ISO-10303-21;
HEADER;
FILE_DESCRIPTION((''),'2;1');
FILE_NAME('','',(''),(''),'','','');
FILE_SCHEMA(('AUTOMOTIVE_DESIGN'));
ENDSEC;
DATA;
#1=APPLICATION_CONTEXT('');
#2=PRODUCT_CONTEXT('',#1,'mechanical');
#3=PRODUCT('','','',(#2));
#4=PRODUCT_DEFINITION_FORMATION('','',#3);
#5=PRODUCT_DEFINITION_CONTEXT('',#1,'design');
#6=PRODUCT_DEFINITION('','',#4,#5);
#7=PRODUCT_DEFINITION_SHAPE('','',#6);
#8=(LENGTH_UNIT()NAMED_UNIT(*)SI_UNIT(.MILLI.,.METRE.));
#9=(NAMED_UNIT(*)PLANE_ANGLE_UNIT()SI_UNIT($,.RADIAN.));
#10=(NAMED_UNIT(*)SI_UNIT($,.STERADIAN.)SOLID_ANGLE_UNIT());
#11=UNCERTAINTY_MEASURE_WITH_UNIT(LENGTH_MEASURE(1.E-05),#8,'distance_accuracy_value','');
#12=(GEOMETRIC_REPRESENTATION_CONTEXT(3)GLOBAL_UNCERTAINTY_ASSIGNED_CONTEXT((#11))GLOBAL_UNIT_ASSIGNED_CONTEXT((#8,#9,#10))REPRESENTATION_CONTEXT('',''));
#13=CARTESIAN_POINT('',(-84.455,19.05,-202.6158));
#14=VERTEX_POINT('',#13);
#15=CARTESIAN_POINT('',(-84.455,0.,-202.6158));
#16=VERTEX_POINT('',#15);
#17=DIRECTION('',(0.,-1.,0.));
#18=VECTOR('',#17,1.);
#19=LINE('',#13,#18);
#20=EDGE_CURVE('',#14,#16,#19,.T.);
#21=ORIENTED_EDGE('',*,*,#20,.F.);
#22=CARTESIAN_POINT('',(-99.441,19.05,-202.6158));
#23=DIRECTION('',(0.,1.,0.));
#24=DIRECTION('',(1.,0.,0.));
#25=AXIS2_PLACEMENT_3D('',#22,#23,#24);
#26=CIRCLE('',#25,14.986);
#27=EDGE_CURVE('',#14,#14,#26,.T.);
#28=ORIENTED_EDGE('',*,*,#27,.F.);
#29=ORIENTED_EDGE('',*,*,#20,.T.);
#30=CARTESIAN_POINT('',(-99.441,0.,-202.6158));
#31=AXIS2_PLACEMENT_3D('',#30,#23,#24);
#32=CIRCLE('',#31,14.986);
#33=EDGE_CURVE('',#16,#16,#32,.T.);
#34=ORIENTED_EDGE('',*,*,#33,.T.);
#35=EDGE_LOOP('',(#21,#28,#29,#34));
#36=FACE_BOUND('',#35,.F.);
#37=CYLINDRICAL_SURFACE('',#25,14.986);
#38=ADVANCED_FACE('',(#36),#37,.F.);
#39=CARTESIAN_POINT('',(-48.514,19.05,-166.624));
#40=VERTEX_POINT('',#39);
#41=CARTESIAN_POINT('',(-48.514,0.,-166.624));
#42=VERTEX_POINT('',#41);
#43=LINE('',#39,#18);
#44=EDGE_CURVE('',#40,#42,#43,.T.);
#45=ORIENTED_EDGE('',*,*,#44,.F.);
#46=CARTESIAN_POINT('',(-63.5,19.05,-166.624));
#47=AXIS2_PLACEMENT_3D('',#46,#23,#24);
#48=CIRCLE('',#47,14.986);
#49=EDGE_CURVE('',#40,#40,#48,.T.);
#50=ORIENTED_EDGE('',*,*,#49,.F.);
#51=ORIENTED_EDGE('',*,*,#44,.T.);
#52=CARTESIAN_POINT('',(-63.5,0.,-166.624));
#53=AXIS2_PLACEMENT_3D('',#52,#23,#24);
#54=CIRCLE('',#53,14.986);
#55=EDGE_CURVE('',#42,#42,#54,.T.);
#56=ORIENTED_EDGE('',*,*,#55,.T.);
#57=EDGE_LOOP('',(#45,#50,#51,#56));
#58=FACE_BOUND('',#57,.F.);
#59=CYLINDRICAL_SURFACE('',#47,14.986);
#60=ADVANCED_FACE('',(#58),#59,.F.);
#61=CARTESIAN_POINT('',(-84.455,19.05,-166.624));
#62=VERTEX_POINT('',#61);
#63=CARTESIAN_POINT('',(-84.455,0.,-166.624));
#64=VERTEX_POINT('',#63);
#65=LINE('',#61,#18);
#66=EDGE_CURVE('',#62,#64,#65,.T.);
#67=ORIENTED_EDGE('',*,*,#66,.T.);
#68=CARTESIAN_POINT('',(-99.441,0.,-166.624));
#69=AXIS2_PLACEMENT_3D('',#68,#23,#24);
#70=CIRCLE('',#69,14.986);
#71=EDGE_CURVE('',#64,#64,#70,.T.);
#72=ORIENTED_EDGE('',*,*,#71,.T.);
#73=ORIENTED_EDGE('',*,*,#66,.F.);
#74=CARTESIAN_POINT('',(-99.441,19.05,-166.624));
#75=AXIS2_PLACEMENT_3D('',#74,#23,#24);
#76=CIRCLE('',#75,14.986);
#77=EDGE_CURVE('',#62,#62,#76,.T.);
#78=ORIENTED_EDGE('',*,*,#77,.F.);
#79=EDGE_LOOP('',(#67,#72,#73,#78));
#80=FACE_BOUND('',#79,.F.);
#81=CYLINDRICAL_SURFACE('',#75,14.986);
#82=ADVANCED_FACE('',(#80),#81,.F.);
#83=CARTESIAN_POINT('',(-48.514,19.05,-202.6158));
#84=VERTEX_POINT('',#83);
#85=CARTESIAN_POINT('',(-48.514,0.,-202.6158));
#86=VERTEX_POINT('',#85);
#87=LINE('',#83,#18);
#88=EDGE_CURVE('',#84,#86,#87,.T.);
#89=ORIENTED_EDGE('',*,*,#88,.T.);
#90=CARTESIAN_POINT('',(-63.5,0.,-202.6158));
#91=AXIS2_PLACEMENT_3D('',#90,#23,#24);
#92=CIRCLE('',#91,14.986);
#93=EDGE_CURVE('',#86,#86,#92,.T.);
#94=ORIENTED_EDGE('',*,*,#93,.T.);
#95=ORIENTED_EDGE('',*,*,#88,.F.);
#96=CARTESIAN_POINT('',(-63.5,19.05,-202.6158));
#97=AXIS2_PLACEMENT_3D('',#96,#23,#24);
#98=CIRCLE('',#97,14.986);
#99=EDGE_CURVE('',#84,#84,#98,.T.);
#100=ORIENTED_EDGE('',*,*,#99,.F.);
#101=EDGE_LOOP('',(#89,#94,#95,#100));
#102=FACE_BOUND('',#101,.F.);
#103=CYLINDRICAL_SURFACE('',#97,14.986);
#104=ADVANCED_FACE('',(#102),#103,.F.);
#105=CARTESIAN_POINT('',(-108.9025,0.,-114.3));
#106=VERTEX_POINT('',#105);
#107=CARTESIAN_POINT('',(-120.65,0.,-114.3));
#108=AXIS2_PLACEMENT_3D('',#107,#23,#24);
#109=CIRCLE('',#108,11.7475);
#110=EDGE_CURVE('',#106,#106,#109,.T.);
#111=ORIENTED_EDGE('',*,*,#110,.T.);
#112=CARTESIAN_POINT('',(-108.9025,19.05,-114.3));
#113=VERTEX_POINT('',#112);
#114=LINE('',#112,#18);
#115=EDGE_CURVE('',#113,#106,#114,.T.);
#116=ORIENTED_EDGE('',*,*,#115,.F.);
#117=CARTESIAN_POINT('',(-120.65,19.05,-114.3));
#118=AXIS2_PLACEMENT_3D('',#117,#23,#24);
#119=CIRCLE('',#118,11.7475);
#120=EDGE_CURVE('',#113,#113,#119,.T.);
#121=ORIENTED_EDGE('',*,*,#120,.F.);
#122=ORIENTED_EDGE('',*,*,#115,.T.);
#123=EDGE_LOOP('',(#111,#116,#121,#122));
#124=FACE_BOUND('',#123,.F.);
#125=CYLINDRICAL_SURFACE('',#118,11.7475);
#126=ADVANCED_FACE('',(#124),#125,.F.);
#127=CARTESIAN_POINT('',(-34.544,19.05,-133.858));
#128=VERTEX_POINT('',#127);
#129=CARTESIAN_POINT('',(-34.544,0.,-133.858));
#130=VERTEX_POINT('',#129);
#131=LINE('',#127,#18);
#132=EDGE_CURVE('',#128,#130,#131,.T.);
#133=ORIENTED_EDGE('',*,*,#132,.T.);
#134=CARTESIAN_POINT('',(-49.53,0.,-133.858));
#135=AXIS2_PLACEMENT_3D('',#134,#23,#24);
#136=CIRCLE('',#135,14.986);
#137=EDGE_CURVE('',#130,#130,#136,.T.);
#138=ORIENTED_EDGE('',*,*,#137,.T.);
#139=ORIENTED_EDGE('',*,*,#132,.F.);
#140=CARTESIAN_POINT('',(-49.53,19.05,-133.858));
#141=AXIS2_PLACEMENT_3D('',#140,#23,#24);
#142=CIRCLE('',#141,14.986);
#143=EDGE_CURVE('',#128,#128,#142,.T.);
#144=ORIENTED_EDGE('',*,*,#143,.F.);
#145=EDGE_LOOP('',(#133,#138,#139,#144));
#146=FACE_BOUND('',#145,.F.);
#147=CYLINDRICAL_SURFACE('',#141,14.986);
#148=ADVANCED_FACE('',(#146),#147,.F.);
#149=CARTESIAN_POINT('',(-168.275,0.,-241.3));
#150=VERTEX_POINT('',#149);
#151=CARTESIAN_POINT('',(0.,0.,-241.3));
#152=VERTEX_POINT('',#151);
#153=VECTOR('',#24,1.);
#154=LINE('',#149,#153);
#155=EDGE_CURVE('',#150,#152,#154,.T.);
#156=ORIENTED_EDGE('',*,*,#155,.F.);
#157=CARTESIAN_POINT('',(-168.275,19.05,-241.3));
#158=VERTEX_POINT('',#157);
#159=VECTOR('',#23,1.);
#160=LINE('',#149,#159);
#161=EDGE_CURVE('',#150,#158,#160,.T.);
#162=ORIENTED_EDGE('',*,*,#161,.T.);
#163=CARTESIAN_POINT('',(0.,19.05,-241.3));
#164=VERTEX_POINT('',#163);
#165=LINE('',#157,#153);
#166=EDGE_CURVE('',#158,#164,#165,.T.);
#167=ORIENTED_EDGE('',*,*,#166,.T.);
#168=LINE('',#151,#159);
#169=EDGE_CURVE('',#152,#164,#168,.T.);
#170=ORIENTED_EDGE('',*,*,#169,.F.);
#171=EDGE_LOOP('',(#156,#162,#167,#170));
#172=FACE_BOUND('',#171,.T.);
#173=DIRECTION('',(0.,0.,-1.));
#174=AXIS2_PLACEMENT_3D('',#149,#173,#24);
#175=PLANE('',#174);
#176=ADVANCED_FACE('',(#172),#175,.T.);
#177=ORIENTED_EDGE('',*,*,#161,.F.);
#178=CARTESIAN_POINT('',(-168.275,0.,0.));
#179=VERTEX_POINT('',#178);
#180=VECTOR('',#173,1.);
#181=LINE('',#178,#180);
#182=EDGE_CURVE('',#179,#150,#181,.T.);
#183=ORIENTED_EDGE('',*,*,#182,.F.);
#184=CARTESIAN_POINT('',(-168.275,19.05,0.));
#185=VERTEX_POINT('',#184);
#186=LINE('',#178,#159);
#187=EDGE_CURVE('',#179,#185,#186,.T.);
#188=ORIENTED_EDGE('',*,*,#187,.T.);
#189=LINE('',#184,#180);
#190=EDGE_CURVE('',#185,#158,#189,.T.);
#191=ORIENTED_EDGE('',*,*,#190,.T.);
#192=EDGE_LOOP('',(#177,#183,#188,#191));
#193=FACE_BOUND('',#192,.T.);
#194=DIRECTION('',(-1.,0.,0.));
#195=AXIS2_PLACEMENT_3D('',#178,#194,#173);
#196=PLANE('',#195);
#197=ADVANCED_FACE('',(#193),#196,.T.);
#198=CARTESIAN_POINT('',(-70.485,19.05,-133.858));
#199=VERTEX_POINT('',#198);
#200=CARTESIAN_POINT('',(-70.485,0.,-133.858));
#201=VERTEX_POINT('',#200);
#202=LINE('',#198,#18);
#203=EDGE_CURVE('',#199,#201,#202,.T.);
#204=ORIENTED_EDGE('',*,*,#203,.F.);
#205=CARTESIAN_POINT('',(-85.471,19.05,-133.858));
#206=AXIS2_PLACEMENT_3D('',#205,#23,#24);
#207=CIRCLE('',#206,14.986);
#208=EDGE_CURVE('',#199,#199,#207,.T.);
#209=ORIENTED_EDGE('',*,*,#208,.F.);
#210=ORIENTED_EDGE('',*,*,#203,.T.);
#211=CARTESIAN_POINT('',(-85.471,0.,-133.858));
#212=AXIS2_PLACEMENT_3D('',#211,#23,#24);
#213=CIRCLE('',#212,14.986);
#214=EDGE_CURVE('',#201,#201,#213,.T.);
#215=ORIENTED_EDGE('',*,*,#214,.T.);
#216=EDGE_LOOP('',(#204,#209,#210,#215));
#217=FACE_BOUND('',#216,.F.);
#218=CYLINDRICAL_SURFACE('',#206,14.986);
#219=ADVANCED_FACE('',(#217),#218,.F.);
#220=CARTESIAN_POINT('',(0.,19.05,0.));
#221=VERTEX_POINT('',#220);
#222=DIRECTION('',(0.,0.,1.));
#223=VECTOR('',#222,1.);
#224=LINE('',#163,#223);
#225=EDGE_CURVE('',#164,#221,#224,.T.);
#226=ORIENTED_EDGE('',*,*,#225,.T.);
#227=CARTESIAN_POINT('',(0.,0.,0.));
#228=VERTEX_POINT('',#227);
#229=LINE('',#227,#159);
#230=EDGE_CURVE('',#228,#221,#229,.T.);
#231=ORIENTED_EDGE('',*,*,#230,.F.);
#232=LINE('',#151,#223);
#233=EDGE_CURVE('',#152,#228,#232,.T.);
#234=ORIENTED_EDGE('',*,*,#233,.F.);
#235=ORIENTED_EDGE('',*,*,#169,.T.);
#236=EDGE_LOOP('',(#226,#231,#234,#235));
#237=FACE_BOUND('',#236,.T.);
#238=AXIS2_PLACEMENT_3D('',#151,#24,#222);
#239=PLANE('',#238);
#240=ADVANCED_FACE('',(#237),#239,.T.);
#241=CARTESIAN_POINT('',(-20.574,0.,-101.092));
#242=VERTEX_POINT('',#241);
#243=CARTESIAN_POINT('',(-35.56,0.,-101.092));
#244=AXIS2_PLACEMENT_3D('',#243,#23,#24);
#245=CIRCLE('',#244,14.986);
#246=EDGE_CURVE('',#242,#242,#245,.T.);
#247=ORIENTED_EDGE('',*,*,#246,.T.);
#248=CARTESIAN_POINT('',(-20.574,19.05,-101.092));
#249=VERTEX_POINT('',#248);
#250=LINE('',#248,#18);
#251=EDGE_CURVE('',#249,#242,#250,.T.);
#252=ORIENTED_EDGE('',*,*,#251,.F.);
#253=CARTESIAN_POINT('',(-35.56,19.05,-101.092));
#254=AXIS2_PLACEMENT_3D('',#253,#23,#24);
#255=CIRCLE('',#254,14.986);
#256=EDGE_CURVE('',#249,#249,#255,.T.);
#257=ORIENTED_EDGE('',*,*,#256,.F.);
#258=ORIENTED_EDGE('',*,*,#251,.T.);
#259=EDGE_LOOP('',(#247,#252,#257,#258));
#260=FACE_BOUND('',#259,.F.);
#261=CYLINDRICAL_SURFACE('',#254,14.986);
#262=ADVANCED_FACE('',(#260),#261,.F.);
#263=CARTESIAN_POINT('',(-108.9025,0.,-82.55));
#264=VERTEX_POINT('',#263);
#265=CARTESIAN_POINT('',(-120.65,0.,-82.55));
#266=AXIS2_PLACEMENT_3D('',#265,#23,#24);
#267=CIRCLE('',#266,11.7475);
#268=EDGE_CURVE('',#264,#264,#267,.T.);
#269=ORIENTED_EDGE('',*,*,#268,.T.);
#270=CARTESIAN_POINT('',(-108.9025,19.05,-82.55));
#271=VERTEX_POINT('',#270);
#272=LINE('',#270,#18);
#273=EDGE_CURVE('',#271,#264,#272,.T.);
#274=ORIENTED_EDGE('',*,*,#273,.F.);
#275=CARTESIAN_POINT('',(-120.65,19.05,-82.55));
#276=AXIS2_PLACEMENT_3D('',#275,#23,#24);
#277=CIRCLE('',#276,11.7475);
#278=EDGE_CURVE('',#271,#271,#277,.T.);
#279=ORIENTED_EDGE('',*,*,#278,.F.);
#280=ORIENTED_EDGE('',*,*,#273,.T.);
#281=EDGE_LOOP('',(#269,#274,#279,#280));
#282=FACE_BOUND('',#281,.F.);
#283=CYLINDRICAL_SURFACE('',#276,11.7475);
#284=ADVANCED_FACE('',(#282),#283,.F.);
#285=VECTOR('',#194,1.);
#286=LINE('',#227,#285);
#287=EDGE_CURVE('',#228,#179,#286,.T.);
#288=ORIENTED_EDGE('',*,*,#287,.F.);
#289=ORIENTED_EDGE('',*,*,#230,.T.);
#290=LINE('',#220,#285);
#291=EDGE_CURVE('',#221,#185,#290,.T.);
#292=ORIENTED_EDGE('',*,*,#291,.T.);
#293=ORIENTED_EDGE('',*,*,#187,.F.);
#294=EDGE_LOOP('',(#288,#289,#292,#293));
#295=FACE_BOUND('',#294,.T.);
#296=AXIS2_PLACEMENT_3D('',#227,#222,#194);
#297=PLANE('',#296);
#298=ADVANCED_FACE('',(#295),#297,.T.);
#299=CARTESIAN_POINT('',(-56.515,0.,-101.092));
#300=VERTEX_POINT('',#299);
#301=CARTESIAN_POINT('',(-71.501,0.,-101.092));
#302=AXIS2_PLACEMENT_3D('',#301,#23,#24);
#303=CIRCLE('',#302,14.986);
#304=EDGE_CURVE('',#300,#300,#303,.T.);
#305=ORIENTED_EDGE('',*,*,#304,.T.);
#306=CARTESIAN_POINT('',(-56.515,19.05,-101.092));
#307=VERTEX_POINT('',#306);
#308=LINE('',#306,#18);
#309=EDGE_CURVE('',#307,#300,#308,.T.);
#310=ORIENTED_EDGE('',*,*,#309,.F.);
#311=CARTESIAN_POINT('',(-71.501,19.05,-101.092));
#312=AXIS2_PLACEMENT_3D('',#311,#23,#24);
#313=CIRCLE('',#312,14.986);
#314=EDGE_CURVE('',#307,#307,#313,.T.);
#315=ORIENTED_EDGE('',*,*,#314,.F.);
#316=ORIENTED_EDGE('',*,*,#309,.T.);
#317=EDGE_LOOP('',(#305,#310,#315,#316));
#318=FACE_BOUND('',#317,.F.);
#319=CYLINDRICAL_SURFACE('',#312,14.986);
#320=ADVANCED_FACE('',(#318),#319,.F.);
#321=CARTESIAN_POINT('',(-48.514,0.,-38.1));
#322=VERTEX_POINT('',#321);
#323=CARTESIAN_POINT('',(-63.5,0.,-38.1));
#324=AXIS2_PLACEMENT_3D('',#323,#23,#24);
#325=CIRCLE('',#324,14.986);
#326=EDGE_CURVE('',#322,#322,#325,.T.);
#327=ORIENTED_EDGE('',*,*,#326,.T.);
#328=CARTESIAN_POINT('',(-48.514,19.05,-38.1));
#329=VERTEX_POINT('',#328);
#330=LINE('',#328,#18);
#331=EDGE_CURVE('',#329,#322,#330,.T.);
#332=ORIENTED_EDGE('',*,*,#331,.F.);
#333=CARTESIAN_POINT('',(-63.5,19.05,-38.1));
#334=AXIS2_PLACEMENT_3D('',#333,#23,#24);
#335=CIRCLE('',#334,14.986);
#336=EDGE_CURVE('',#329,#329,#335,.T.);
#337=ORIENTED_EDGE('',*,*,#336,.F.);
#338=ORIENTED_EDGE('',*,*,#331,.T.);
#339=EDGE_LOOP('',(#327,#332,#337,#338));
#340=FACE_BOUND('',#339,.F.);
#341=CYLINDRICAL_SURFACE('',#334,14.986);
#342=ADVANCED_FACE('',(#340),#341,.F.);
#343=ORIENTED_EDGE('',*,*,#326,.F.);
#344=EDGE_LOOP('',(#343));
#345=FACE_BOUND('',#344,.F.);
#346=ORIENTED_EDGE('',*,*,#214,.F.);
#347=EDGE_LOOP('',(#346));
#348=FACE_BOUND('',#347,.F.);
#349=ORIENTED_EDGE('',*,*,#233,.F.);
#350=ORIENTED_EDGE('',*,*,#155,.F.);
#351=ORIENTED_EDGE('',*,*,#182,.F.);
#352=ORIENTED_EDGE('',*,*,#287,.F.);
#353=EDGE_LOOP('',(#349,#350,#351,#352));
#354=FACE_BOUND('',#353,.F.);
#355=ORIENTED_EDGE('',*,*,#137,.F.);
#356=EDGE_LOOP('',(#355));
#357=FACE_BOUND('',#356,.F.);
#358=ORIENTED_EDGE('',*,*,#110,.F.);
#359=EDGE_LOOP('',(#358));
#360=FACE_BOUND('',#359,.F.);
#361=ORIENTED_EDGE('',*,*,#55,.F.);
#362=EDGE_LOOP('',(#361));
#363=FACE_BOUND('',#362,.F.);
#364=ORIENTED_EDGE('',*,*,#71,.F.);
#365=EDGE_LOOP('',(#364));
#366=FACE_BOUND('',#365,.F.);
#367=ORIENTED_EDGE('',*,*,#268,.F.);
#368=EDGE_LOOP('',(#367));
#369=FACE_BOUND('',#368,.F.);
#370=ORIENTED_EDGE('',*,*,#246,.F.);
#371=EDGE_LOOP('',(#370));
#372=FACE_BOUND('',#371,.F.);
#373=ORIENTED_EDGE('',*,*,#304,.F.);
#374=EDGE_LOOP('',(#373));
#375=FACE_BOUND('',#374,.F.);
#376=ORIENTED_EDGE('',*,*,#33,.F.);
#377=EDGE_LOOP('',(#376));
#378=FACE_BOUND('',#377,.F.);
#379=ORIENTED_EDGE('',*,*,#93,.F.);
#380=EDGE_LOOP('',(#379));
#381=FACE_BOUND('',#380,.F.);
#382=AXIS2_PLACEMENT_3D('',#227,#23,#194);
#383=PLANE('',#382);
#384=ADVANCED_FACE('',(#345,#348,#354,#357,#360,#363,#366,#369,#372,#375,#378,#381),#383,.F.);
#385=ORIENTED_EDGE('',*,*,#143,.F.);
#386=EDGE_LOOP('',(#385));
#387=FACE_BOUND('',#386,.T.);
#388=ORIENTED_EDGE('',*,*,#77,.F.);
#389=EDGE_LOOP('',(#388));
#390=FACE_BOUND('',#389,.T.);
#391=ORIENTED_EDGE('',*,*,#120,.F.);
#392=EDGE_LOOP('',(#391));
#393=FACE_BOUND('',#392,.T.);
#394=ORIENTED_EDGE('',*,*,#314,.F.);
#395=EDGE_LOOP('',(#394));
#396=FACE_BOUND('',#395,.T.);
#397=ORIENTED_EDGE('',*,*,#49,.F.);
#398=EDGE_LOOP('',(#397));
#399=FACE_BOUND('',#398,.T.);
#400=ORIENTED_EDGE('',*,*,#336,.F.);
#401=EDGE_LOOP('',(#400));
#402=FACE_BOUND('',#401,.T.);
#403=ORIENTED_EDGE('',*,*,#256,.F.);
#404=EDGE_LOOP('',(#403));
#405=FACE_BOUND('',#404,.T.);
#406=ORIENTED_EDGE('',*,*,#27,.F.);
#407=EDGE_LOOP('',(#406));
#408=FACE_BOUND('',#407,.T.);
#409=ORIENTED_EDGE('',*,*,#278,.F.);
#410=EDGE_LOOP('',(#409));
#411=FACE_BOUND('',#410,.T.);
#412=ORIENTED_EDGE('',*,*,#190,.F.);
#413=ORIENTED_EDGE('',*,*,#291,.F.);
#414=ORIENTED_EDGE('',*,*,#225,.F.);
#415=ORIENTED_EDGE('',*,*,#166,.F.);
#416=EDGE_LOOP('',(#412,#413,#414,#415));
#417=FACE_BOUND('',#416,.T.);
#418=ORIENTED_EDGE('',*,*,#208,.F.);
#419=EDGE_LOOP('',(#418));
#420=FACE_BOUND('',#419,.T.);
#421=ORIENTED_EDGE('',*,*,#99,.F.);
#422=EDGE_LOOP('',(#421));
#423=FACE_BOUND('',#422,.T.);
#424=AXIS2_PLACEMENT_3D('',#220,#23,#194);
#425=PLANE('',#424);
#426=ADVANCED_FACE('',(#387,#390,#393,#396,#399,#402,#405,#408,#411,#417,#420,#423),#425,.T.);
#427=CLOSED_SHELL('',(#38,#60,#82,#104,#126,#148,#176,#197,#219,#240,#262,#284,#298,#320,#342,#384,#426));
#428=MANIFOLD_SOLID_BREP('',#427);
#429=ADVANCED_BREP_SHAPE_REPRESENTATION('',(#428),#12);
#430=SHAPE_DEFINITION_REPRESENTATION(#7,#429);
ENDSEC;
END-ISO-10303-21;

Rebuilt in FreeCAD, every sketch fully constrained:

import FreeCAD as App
import Part
import Sketcher
Q = App.Units.Quantity

doc = App.newDocument("Part")
body = doc.addObject("PartDesign::Body", "Body")

sketch1 = doc.addObject("Sketcher::SketchObject", "Sketch")
body.addObject(sketch1)
sketch1.AttachmentSupport = (doc.XZ_Plane, [""])
sketch1.MapMode = "FlatFace"
sketch1.addGeometry([
    Part.LineSegment(App.Vector(-168, 0, 0), App.Vector(0, 0, 0)),
    Part.LineSegment(App.Vector(0, 0, 0), App.Vector(0, -241, 0)),
    Part.LineSegment(App.Vector(0, -241, 0), App.Vector(-168, -241, 0)),
    Part.LineSegment(App.Vector(-168, -241, 0), App.Vector(-168, 0, 0)),
], False)
sketch1.addConstraint([
    Sketcher.Constraint("Coincident", 0, 2, 1, 1),
    Sketcher.Constraint("Coincident", 1, 2, 2, 1),
    Sketcher.Constraint("Coincident", 2, 2, 3, 1),
    Sketcher.Constraint("Coincident", 3, 2, 0, 1),
    Sketcher.Constraint("Horizontal", 0),
    Sketcher.Constraint("Vertical", 1),
    Sketcher.Constraint("Horizontal", 2),
    Sketcher.Constraint("Vertical", 3),
    Sketcher.Constraint("Coincident", 0, 2, -1, 1),
    Sketcher.Constraint("DistanceY", 1, 2, 1, 1, Q("9.5 in")),
    Sketcher.Constraint("DistanceX", 0, 1, 0, 2, Q("6.625 in")),
])
pad1 = doc.addObject("PartDesign::Pad", "Pad")
body.addObject(pad1)
pad1.Profile = sketch1
pad1.Length = Q("0.75 in")
pad1.Reversed = True

sketch2 = doc.addObject("Sketcher::SketchObject", "Sketch001")
body.addObject(sketch2)
sketch2.AttachmentSupport = (doc.XZ_Plane, [""])
sketch2.MapMode = "FlatFace"
sketch2.AttachmentOffset = App.Placement(App.Vector(0, 0, -0.75 * 25.4), App.Rotation())
sketch2.addGeometry([
    Part.Circle(App.Vector(-64, -38, 0), App.Vector(0, 0, 1), 15),
    Part.Circle(App.Vector(-72, -101, 0), App.Vector(0, 0, 1), 15),
    Part.Circle(App.Vector(-85, -134, 0), App.Vector(0, 0, 1), 15),
    Part.Circle(App.Vector(-99, -167, 0), App.Vector(0, 0, 1), 15),
    Part.Circle(App.Vector(-99, -203, 0), App.Vector(0, 0, 1), 15),
    Part.Circle(App.Vector(-36, -101, 0), App.Vector(0, 0, 1), 15),
    Part.Circle(App.Vector(-50, -134, 0), App.Vector(0, 0, 1), 15),
    Part.Circle(App.Vector(-64, -167, 0), App.Vector(0, 0, 1), 15),
    Part.Circle(App.Vector(-64, -203, 0), App.Vector(0, 0, 1), 15),
    Part.Circle(App.Vector(-121, -83, 0), App.Vector(0, 0, 1), 12),
    Part.Circle(App.Vector(-121, -114, 0), App.Vector(0, 0, 1), 12),
], False)
sketch2.addConstraint([
    Sketcher.Constraint("Equal", 0, 1),
    Sketcher.Constraint("Equal", 1, 2),
    Sketcher.Constraint("Equal", 2, 3),
    Sketcher.Constraint("Equal", 3, 4),
    Sketcher.Constraint("Equal", 4, 5),
    Sketcher.Constraint("Equal", 5, 6),
    Sketcher.Constraint("Equal", 6, 7),
    Sketcher.Constraint("Equal", 7, 8),
    Sketcher.Constraint("Equal", 9, 10),
    Sketcher.Constraint("Horizontal", 1, 3, 5, 3),
    Sketcher.Constraint("Horizontal", 2, 3, 6, 3),
    Sketcher.Constraint("Horizontal", 3, 3, 7, 3),
    Sketcher.Constraint("Horizontal", 4, 3, 8, 3),
    Sketcher.Constraint("Vertical", 3, 3, 4, 3),
    Sketcher.Constraint("Vertical", 0, 3, 7, 3),
    Sketcher.Constraint("Vertical", 7, 3, 8, 3),
    Sketcher.Constraint("Vertical", 9, 3, 10, 3),
    Sketcher.Constraint("Diameter", 0, Q("1.18 in")),
    Sketcher.Constraint("Diameter", 9, Q("0.925 in")),
    Sketcher.Constraint("DistanceX", 0, 3, -1, 1, Q("2.5 in")),
    Sketcher.Constraint("DistanceY", 0, 3, -1, 1, Q("1.5 in")),
    Sketcher.Constraint("DistanceX", 9, 3, -1, 1, Q("4.75 in")),
    Sketcher.Constraint("DistanceY", 9, 3, -1, 1, Q("3.25 in")),
    Sketcher.Constraint("DistanceY", 1, 3, 0, 3, Q("2.48 in")),
    Sketcher.Constraint("DistanceX", 2, 3, 1, 3, Q("0.55 in")),
    Sketcher.Constraint("DistanceY", 2, 3, 1, 3, Q("1.29 in")),
    Sketcher.Constraint("DistanceX", 3, 3, 2, 3, Q("0.55 in")),
    Sketcher.Constraint("DistanceY", 3, 3, 2, 3, Q("1.29 in")),
    Sketcher.Constraint("DistanceX", 6, 3, 5, 3, Q("0.55 in")),
    Sketcher.Constraint("DistanceX", 7, 3, 6, 3, Q("0.55 in")),
    Sketcher.Constraint("DistanceY", 10, 3, 9, 3, Q("1.25 in")),
    Sketcher.Constraint("DistanceX", 1, 3, 0, 3, Q("0.315 in")),
    Sketcher.Constraint("DistanceY", 4, 3, 3, 3, Q("1.417 in")),
])
pocket1 = doc.addObject("PartDesign::Pocket", "Pocket")
body.addObject(pocket1)
pocket1.Profile = sketch2
pocket1.Length = Q("1 in")
pocket1.Reversed = True

doc.recompute()
